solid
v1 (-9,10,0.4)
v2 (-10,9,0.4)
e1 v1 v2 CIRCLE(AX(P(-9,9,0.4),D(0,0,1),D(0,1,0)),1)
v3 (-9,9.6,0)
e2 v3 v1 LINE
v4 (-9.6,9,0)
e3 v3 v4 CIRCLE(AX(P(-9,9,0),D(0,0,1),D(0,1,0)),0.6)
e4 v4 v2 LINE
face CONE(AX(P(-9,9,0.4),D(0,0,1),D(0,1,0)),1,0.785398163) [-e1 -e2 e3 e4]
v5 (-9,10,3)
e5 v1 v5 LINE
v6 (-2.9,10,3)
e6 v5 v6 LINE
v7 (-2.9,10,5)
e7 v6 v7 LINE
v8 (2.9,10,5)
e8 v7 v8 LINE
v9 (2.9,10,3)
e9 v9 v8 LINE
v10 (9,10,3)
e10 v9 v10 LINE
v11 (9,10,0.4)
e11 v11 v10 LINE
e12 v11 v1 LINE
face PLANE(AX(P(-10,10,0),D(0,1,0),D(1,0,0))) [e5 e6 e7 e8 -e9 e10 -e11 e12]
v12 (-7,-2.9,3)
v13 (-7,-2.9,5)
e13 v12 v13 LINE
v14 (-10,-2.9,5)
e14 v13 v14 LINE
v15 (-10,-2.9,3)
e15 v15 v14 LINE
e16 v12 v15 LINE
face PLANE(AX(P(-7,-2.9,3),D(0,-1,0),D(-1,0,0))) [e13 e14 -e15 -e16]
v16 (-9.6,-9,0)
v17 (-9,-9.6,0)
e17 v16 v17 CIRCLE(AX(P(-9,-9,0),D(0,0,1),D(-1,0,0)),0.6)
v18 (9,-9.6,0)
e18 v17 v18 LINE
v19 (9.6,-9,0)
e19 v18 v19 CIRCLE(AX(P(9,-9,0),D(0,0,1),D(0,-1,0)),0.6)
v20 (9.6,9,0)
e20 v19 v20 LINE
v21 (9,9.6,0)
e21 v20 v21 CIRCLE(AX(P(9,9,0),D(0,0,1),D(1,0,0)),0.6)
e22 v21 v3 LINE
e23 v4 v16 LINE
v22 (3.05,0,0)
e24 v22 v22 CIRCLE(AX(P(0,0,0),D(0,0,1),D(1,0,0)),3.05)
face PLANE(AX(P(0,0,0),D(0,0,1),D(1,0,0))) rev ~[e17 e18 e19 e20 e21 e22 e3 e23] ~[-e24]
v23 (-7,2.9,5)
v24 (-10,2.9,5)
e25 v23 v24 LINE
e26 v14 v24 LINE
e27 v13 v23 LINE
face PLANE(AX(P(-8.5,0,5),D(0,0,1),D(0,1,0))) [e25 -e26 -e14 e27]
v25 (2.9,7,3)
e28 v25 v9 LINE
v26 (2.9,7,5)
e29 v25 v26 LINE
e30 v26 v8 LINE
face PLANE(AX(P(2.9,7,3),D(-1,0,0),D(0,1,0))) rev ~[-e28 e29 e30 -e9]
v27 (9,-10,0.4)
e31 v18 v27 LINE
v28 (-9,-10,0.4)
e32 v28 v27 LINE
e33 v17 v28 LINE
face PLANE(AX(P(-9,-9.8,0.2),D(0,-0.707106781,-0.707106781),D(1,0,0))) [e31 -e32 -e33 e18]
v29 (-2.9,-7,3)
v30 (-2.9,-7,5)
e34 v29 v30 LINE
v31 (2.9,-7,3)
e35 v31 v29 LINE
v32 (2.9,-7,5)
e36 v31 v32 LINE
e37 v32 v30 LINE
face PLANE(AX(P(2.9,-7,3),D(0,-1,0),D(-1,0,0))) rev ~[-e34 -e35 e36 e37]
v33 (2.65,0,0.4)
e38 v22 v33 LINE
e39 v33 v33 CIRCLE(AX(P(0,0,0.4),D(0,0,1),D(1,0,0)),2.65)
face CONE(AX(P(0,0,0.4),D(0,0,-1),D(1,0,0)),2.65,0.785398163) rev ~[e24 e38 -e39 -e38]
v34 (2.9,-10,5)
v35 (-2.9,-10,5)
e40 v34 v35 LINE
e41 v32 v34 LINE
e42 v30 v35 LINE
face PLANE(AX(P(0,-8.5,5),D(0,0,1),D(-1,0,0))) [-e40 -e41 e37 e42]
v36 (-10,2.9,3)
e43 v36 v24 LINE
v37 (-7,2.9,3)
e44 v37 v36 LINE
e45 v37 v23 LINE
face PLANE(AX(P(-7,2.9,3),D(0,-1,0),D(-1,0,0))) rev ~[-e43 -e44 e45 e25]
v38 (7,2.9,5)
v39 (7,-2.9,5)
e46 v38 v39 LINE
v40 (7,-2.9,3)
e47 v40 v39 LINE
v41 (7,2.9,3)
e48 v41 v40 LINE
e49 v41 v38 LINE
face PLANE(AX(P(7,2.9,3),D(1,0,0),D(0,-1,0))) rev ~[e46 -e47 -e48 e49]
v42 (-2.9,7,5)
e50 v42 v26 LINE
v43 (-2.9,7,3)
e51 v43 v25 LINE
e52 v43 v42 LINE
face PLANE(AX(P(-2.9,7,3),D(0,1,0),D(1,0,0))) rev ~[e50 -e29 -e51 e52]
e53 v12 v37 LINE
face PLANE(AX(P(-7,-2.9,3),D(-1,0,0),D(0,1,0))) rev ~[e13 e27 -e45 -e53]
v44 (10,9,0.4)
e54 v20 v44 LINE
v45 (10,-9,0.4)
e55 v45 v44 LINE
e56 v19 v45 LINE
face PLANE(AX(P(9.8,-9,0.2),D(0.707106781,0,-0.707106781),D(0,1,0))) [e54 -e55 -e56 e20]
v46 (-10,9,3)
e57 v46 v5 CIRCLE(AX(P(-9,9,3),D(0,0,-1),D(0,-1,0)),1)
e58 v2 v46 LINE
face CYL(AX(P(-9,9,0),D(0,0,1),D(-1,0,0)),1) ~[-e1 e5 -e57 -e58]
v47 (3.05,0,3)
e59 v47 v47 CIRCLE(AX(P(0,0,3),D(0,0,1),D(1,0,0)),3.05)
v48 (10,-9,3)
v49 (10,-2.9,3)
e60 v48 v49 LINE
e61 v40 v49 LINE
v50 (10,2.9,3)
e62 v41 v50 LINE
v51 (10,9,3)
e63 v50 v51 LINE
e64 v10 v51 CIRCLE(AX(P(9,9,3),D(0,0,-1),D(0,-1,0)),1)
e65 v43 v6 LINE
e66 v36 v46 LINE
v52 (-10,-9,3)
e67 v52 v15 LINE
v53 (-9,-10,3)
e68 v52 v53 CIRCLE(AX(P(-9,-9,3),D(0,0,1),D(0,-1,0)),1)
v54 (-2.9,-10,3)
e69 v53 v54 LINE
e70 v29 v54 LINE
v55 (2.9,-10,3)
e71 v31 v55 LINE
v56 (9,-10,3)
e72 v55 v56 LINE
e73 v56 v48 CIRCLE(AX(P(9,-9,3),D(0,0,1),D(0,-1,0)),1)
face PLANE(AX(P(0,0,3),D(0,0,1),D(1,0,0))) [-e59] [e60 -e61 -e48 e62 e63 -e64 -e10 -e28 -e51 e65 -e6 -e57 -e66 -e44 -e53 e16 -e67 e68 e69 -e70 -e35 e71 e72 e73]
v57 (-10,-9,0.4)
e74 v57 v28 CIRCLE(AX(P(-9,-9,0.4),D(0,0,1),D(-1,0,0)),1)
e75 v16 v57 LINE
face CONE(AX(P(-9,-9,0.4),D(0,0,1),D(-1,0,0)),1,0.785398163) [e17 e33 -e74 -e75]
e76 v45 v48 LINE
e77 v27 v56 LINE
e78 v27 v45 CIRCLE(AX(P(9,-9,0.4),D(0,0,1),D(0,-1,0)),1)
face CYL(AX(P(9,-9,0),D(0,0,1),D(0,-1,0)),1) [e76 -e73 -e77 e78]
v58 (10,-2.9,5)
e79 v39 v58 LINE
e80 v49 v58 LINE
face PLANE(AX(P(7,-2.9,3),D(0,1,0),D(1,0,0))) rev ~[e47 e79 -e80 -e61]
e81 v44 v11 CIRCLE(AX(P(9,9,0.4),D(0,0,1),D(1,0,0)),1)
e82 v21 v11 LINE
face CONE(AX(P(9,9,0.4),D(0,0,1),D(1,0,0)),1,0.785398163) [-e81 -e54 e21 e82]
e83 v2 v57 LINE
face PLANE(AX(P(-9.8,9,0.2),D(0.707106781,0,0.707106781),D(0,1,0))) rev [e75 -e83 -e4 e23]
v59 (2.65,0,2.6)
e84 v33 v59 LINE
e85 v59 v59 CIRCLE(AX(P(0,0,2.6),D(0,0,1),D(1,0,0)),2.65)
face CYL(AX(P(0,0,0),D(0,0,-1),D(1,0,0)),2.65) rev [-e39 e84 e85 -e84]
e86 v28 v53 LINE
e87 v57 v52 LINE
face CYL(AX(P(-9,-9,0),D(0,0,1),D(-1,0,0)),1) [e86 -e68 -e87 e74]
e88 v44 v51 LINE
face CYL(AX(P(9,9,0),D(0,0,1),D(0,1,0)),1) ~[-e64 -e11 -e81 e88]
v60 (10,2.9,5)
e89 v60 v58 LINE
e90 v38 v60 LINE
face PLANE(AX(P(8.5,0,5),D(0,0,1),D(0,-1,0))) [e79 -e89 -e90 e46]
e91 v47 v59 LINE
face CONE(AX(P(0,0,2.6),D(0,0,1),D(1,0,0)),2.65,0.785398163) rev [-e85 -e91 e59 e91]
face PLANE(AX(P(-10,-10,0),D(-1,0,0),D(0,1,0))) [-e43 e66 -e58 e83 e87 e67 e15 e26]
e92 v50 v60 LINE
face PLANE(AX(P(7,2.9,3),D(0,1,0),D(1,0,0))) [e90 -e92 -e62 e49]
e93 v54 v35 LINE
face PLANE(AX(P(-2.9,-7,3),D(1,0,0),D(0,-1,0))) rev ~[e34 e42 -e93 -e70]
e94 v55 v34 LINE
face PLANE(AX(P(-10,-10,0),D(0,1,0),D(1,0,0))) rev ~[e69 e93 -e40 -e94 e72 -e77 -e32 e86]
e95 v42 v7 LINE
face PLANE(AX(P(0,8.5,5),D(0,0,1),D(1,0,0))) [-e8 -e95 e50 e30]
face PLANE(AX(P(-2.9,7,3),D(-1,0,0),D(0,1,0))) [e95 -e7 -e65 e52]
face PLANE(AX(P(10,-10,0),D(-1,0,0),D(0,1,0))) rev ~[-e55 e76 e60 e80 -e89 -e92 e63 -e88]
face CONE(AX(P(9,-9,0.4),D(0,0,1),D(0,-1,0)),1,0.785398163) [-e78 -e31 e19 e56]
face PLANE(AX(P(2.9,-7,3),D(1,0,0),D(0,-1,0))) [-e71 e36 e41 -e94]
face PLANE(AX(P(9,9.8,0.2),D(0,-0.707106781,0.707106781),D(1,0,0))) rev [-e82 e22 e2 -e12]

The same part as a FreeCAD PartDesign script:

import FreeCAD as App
import Part
import Sketcher

V = App.Vector
Q = App.Units.Quantity


def edges_at(feature, points):
    """Names of the edges that pass closest to the given points."""
    edges = feature.Shape.Edges
    near = lambda p: min(range(len(edges)), key=lambda i: edges[i].distToShape(Part.Vertex(*p))[0])
    return sorted({f"Edge{near(p) + 1}" for p in points})


def add_polygon(sketch, points):
    """Adds a closed chain of lines whose ends are joined by coincident constraints."""
    first, n = sketch.GeometryCount, len(points)
    for a, b in zip(points, points[1:] + points[:1]):
        sketch.addGeometry(Part.LineSegment(App.Vector(*a, 0), App.Vector(*b, 0)), False)
    for i in range(n):
        sketch.addConstraint(Sketcher.Constraint("Coincident", first + i, 2, first + (i + 1) % n, 1))

doc = App.newDocument("Part")
body = doc.addObject("PartDesign::Body", "Body")

# Sketch on XY plane
sketch1 = body.newObject("Sketcher::SketchObject", "Sketch")
sketch1.AttachmentSupport = (doc.getObject("XY_Plane"), [""])
sketch1.MapMode = "FlatFace"
add_polygon(sketch1, [(-10, 10), (-10, -10), (10, -10), (10, 10)])  # lines 0-3
sketch1.addGeometry(Part.Circle(V(0, 0, 0), V(0, 0, 1), 2.65), False)  # 4
sketch1.addConstraint(Sketcher.Constraint("Vertical", 0))
sketch1.addConstraint(Sketcher.Constraint("Horizontal", 1))
sketch1.addConstraint(Sketcher.Constraint("Vertical", 2))
sketch1.addConstraint(Sketcher.Constraint("Horizontal", 3))
sketch1.addConstraint(Sketcher.Constraint("Coincident", 4, 3, -1, 1))
sketch1.addConstraint(Sketcher.Constraint("Symmetric", 0, 2, 2, 2, -1, 1))
sketch1.addConstraint(Sketcher.Constraint("Equal", 3, 0))
sketch1.addConstraint(Sketcher.Constraint("Diameter", 4, Q("5.3 mm")))
sketch1.addConstraint(Sketcher.Constraint("DistanceX", 1, 1, 1, 2, Q("20 mm")))
pad1 = body.newObject("PartDesign::Pad", "Pad")
pad1.Profile = sketch1
pad1.Length = 3

# Sketch on XY plane
sketch2 = body.newObject("Sketcher::SketchObject", "Sketch001")
sketch2.AttachmentSupport = (doc.getObject("XY_Plane"), [""])
sketch2.MapMode = "FlatFace"
sketch2.AttachmentOffset = App.Placement(V(0, 0, 3), App.Rotation())
add_polygon(sketch2, [(-2.9, 10), (-2.9, 7), (2.9, 7), (2.9, 10)])  # lines 0-3
sketch2.addConstraint(Sketcher.Constraint("Vertical", 0))
sketch2.addConstraint(Sketcher.Constraint("Horizontal", 1))
sketch2.addConstraint(Sketcher.Constraint("Vertical", 2))
sketch2.addConstraint(Sketcher.Constraint("Horizontal", 3))
sketch2.addConstraint(Sketcher.Constraint("DistanceY", 0, 2, 0, 1, Q("3 mm")))
sketch2.addConstraint(Sketcher.Constraint("DistanceX", 1, 1, 1, 2, Q("5.8 mm")))
sketch2.addConstraint(Sketcher.Constraint("DistanceY", -1, 1, 0, 2, Q("7 mm")))
sketch2.addConstraint(Sketcher.Constraint("DistanceX", 0, 2, -1, 1, Q("2.9 mm")))
pad2 = body.newObject("PartDesign::Pad", "Pad001")
pad2.Profile = sketch2
pad2.Length = 2
doc.recompute()

polarpattern = body.newObject("PartDesign::PolarPattern", "PolarPattern")
polarpattern.Originals = [pad2]
polarpattern.Axis = (doc.getObject("Z_Axis"), [""])
polarpattern.Angle = 360
polarpattern.Occurrences = 4
body.Tip = polarpattern
doc.recompute()

fillet = body.newObject("PartDesign::Fillet", "Fillet")
fillet.Base = (polarpattern, edges_at(polarpattern, [
    (10, -10, 1.5),
    (10, 10, 1.5),
    (-10, 10, 1.5),
    (-10, -10, 1.5),
]))
fillet.Radius = 1
doc.recompute()

chamfer = body.newObject("PartDesign::Chamfer", "Chamfer")
chamfer.Base = (fillet, edges_at(fillet, [(10, 0, 0), (-2.65, 0, 3), (-2.65, 0, 0)]))
chamfer.Size = 0.4

doc.recompute()
